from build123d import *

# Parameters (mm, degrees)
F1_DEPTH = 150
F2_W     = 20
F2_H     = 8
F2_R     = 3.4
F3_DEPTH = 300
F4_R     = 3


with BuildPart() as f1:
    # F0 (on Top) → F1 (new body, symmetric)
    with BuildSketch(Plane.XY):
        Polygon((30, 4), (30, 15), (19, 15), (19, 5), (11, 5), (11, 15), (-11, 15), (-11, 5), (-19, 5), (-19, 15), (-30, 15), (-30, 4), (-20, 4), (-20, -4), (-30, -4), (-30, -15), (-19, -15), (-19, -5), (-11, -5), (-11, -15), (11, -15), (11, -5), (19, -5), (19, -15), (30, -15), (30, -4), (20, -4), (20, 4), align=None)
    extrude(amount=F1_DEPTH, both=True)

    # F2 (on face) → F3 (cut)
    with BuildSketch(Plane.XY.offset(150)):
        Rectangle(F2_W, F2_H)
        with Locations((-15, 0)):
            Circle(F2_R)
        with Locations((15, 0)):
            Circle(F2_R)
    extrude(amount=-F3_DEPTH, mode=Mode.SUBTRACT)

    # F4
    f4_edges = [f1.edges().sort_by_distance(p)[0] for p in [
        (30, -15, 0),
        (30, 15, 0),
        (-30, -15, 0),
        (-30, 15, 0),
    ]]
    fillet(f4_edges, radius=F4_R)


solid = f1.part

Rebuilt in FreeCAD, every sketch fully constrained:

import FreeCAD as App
import Part
import Sketcher
Q = App.Units.Quantity


def edges_at(feature, points):
    """Names of the edges that pass closest to the given points."""
    edges = feature.Shape.Edges
    near = lambda p: min(range(len(edges)), key=lambda i: edges[i].distToShape(Part.Vertex(*p))[0])
    return sorted({f"Edge{near(p) + 1}" for p in points})

doc = App.newDocument("Part")
body = doc.addObject("PartDesign::Body", "Body")

# Sketch on XY plane
sketch1 = body.newObject("Sketcher::SketchObject", "Sketch")
sketch1.AttachmentSupport = (doc.getObject("XY_Plane"), [""])
sketch1.MapMode = "FlatFace"
sketch1.addGeometry(Part.LineSegment(App.Vector(30, 4, 0), App.Vector(30, 15, 0)), False)
sketch1.addGeometry(Part.LineSegment(App.Vector(30, 15, 0), App.Vector(19, 15, 0)), False)
sketch1.addGeometry(Part.LineSegment(App.Vector(19, 15, 0), App.Vector(19, 5, 0)), False)
sketch1.addGeometry(Part.LineSegment(App.Vector(19, 5, 0), App.Vector(11, 5, 0)), False)
sketch1.addGeometry(Part.LineSegment(App.Vector(11, 5, 0), App.Vector(11, 15, 0)), False)
sketch1.addGeometry(Part.LineSegment(App.Vector(11, 15, 0), App.Vector(-11, 15, 0)), False)
sketch1.addGeometry(Part.LineSegment(App.Vector(-11, 15, 0), App.Vector(-11, 5, 0)), False)
sketch1.addGeometry(Part.LineSegment(App.Vector(-11, 5, 0), App.Vector(-19, 5, 0)), False)
sketch1.addGeometry(Part.LineSegment(App.Vector(-19, 5, 0), App.Vector(-19, 15, 0)), False)
sketch1.addGeometry(Part.LineSegment(App.Vector(-19, 15, 0), App.Vector(-30, 15, 0)), False)
sketch1.addGeometry(Part.LineSegment(App.Vector(-30, 15, 0), App.Vector(-30, 4, 0)), False)
sketch1.addGeometry(Part.LineSegment(App.Vector(-30, 4, 0), App.Vector(-20, 4, 0)), False)
sketch1.addGeometry(Part.LineSegment(App.Vector(-20, 4, 0), App.Vector(-20, -4, 0)), False)
sketch1.addGeometry(Part.LineSegment(App.Vector(-20, -4, 0), App.Vector(-30, -4, 0)), False)
sketch1.addGeometry(Part.LineSegment(App.Vector(-30, -4, 0), App.Vector(-30, -15, 0)), False)
sketch1.addGeometry(Part.LineSegment(App.Vector(-30, -15, 0), App.Vector(-19, -15, 0)), False)
sketch1.addGeometry(Part.LineSegment(App.Vector(-19, -15, 0), App.Vector(-19, -5, 0)), False)
sketch1.addGeometry(Part.LineSegment(App.Vector(-19, -5, 0), App.Vector(-11, -5, 0)), False)
sketch1.addGeometry(Part.LineSegment(App.Vector(-11, -5, 0), App.Vector(-11, -15, 0)), False)
sketch1.addGeometry(Part.LineSegment(App.Vector(-11, -15, 0), App.Vector(11, -15, 0)), False)
sketch1.addGeometry(Part.LineSegment(App.Vector(11, -15, 0), App.Vector(11, -5, 0)), False)
sketch1.addGeometry(Part.LineSegment(App.Vector(11, -5, 0), App.Vector(19, -5, 0)), False)
sketch1.addGeometry(Part.LineSegment(App.Vector(19, -5, 0), App.Vector(19, -15, 0)), False)
sketch1.addGeometry(Part.LineSegment(App.Vector(19, -15, 0), App.Vector(30, -15, 0)), False)
sketch1.addGeometry(Part.LineSegment(App.Vector(30, -15, 0), App.Vector(30, -4, 0)), False)
sketch1.addGeometry(Part.LineSegment(App.Vector(30, -4, 0), App.Vector(20, -4, 0)), False)
sketch1.addGeometry(Part.LineSegment(App.Vector(20, -4, 0), App.Vector(20, 4, 0)), False)
sketch1.addGeometry(Part.LineSegment(App.Vector(20, 4, 0), App.Vector(30, 4, 0)), False)
sketch1.addConstraint(Sketcher.Constraint("Coincident", 0, 2, 1, 1))
sketch1.addConstraint(Sketcher.Constraint("Coincident", 1, 2, 2, 1))
sketch1.addConstraint(Sketcher.Constraint("Coincident", 2, 2, 3, 1))
sketch1.addConstraint(Sketcher.Constraint("Coincident", 3, 2, 4, 1))
sketch1.addConstraint(Sketcher.Constraint("Coincident", 4, 2, 5, 1))
sketch1.addConstraint(Sketcher.Constraint("Coincident", 5, 2, 6, 1))
sketch1.addConstraint(Sketcher.Constraint("Coincident", 6, 2, 7, 1))
sketch1.addConstraint(Sketcher.Constraint("Coincident", 7, 2, 8, 1))
sketch1.addConstraint(Sketcher.Constraint("Coincident", 8, 2, 9, 1))
sketch1.addConstraint(Sketcher.Constraint("Coincident", 9, 2, 10, 1))
sketch1.addConstraint(Sketcher.Constraint("Coincident", 10, 2, 11, 1))
sketch1.addConstraint(Sketcher.Constraint("Coincident", 11, 2, 12, 1))
sketch1.addConstraint(Sketcher.Constraint("Coincident", 12, 2, 13, 1))
sketch1.addConstraint(Sketcher.Constraint("Coincident", 13, 2, 14, 1))
sketch1.addConstraint(Sketcher.Constraint("Coincident", 14, 2, 15, 1))
sketch1.addConstraint(Sketcher.Constraint("Coincident", 15, 2, 16, 1))
sketch1.addConstraint(Sketcher.Constraint("Coincident", 16, 2, 17, 1))
sketch1.addConstraint(Sketcher.Constraint("Coincident", 17, 2, 18, 1))
sketch1.addConstraint(Sketcher.Constraint("Coincident", 18, 2, 19, 1))
sketch1.addConstraint(Sketcher.Constraint("Coincident", 19, 2, 20, 1))
sketch1.addConstraint(Sketcher.Constraint("Coincident", 20, 2, 21, 1))
sketch1.addConstraint(Sketcher.Constraint("Coincident", 21, 2, 22, 1))
sketch1.addConstraint(Sketcher.Constraint("Coincident", 22, 2, 23, 1))
sketch1.addConstraint(Sketcher.Constraint("Coincident", 23, 2, 24, 1))
sketch1.addConstraint(Sketcher.Constraint("Coincident", 24, 2, 25, 1))
sketch1.addConstraint(Sketcher.Constraint("Coincident", 25, 2, 26, 1))
sketch1.addConstraint(Sketcher.Constraint("Coincident", 26, 2, 27, 1))
sketch1.addConstraint(Sketcher.Constraint("Coincident", 27, 2, 0, 1))
sketch1.addConstraint(Sketcher.Constraint("Vertical", 0))
sketch1.addConstraint(Sketcher.Constraint("Horizontal", 1))
sketch1.addConstraint(Sketcher.Constraint("Vertical", 2))
sketch1.addConstraint(Sketcher.Constraint("Horizontal", 3))
sketch1.addConstraint(Sketcher.Constraint("Vertical", 4))
sketch1.addConstraint(Sketcher.Constraint("Horizontal", 5))
sketch1.addConstraint(Sketcher.Constraint("Vertical", 6))
sketch1.addConstraint(Sketcher.Constraint("Horizontal", 7))
sketch1.addConstraint(Sketcher.Constraint("Vertical", 8))
sketch1.addConstraint(Sketcher.Constraint("Horizontal", 9))
sketch1.addConstraint(Sketcher.Constraint("Vertical", 10))
sketch1.addConstraint(Sketcher.Constraint("Horizontal", 11))
sketch1.addConstraint(Sketcher.Constraint("Vertical", 12))
sketch1.addConstraint(Sketcher.Constraint("Horizontal", 13))
sketch1.addConstraint(Sketcher.Constraint("Vertical", 14))
sketch1.addConstraint(Sketcher.Constraint("Horizontal", 15))
sketch1.addConstraint(Sketcher.Constraint("Vertical", 16))
sketch1.addConstraint(Sketcher.Constraint("Horizontal", 17))
sketch1.addConstraint(Sketcher.Constraint("Vertical", 18))
sketch1.addConstraint(Sketcher.Constraint("Horizontal", 19))
sketch1.addConstraint(Sketcher.Constraint("Vertical", 20))
sketch1.addConstraint(Sketcher.Constraint("Horizontal", 21))
sketch1.addConstraint(Sketcher.Constraint("Vertical", 22))
sketch1.addConstraint(Sketcher.Constraint("Horizontal", 23))
sketch1.addConstraint(Sketcher.Constraint("Vertical", 24))
sketch1.addConstraint(Sketcher.Constraint("Horizontal", 25))
sketch1.addConstraint(Sketcher.Constraint("Vertical", 26))
sketch1.addConstraint(Sketcher.Constraint("Horizontal", 27))
sketch1.addConstraint(Sketcher.Constraint("Symmetric", 0, 2, 14, 2, -1, 1))
sketch1.addConstraint(Sketcher.Constraint("Symmetric", 2, 2, 16, 2, -1, 1))
sketch1.addConstraint(Sketcher.Constraint("Symmetric", 4, 2, 18, 2, -1, 1))
sketch1.addConstraint(Sketcher.Constraint("Symmetric", 6, 2, 20, 2, -1, 1))
sketch1.addConstraint(Sketcher.Constraint("Symmetric", 8, 2, 22, 2, -1, 1))
sketch1.addConstraint(Sketcher.Constraint("Symmetric", 10, 2, 24, 2, -1, 1))
sketch1.addConstraint(Sketcher.Constraint("Symmetric", 12, 2, 26, 2, -1, 1))
sketch1.addConstraint(Sketcher.Constraint("Symmetric", 3, 2, 6, 2, -2))
sketch1.addConstraint(Sketcher.Constraint("Symmetric", 1, 2, 8, 2, -2))
sketch1.addConstraint(Sketcher.Constraint("Symmetric", 13, 2, 24, 2, -2))
sketch1.addConstraint(Sketcher.Constraint("Horizontal", 1, 2, 4, 2))
sketch1.addConstraint(Sketcher.Constraint("Equal", 23, 0))
sketch1.addConstraint(Sketcher.Constraint("Equal", 27, 2))
sketch1.addConstraint(Sketcher.Constraint("Equal", 21, 12))
sketch1.addConstraint(Sketcher.Constraint("DistanceX", 1, 2, 1, 1, Q("11 mm")))
sketch1.addConstraint(Sketcher.Constraint("DistanceX", 3, 2, 3, 1, Q("8 mm")))
sketch1.addConstraint(Sketcher.Constraint("DistanceX", 5, 2, 5, 1, Q("22 mm")))
sketch1.addConstraint(Sketcher.Constraint("DistanceX", 11, 1, 11, 2, Q("10 mm")))
pad1 = body.newObject("PartDesign::Pad", "Pad")
pad1.Profile = sketch1
pad1.Length = 300
pad1.Midplane = True

# Sketch on XY plane
sketch2 = body.newObject("Sketcher::SketchObject", "Sketch001")
sketch2.AttachmentSupport = (doc.getObject("XY_Plane"), [""])
sketch2.MapMode = "FlatFace"
sketch2.AttachmentOffset = App.Placement(App.Vector(0, 0, 150), App.Rotation())
sketch2.addGeometry(Part.LineSegment(App.Vector(-10, 4, 0), App.Vector(-10, -4, 0)), False)
sketch2.addGeometry(Part.LineSegment(App.Vector(-10, -4, 0), App.Vector(10, -4, 0)), False)
sketch2.addGeometry(Part.LineSegment(App.Vector(10, -4, 0), App.Vector(10, 4, 0)), False)
sketch2.addGeometry(Part.LineSegment(App.Vector(10, 4, 0), App.Vector(-10, 4, 0)), False)
sketch2.addGeometry(Part.Circle(App.Vector(-15, 0, 0), App.Vector(0, 0, 1), 3.4), False)
sketch2.addGeometry(Part.Circle(App.Vector(15, 0, 0), App.Vector(0, 0, 1), 3.4), False)
sketch2.addConstraint(Sketcher.Constraint("Coincident", 0, 2, 1, 1))
sketch2.addConstraint(Sketcher.Constraint("Coincident", 1, 2, 2, 1))
sketch2.addConstraint(Sketcher.Constraint("Coincident", 2, 2, 3, 1))
sketch2.addConstraint(Sketcher.Constraint("Coincident", 3, 2, 0, 1))
sketch2.addConstraint(Sketcher.Constraint("Vertical", 0))
sketch2.addConstraint(Sketcher.Constraint("Horizontal", 1))
sketch2.addConstraint(Sketcher.Constraint("Vertical", 2))
sketch2.addConstraint(Sketcher.Constraint("Horizontal", 3))
sketch2.addConstraint(Sketcher.Constraint("Equal", 4, 5))
sketch2.addConstraint(Sketcher.Constraint("Symmetric", 4, 3, 5, 3, -1, 1))
sketch2.addConstraint(Sketcher.Constraint("Symmetric", 0, 2, 2, 2, -1, 1))
sketch2.addConstraint(Sketcher.Constraint("PointOnObject", 4, 3, -1))
sketch2.addConstraint(Sketcher.Constraint("Diameter", 4, Q("6.8 mm")))
sketch2.addConstraint(Sketcher.Constraint("DistanceX", 1, 1, 1, 2, Q("20 mm")))
sketch2.addConstraint(Sketcher.Constraint("DistanceY", 0, 2, 0, 1, Q("8 mm")))
sketch2.addConstraint(Sketcher.Constraint("DistanceX", 4, 3, -1, 1, Q("15 mm")))
pocket1 = body.newObject("PartDesign::Pocket", "Pocket")
pocket1.Profile = sketch2
pocket1.Length = 300
doc.recompute()

fillet = body.newObject("PartDesign::Fillet", "Fillet")
fillet.Base = (pocket1, edges_at(pocket1, [
    (30, -15, 0),
    (30, 15, 0),
    (-30, -15, 0),
    (-30, 15, 0),
]))
fillet.Radius = 3

doc.recompute()
